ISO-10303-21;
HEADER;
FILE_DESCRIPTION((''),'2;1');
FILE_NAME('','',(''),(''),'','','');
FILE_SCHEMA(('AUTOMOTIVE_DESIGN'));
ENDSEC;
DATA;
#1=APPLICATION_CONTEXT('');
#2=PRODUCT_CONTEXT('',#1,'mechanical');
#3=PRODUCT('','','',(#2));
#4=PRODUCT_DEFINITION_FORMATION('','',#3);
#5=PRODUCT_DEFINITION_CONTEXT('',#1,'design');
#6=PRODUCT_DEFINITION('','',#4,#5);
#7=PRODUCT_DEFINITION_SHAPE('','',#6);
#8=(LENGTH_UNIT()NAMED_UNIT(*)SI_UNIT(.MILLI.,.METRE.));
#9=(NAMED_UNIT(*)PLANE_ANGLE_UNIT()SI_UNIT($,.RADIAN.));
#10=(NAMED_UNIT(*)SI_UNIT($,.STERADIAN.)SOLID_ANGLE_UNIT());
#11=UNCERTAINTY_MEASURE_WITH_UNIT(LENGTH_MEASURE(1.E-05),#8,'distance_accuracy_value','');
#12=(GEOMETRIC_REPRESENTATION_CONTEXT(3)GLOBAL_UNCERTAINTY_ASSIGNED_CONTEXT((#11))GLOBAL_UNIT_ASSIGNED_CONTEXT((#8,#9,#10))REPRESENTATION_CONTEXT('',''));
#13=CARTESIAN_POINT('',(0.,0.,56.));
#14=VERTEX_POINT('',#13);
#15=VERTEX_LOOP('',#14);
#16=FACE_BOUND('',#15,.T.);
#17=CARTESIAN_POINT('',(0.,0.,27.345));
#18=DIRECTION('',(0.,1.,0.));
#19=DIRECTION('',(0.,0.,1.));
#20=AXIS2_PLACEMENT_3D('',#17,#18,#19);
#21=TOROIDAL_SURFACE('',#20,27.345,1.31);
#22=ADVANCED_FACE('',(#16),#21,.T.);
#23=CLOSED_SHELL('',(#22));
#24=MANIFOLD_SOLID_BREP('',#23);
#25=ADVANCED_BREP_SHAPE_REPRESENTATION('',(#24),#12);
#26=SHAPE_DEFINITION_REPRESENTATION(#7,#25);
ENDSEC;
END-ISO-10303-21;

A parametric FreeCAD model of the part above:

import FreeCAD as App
import Part
import Sketcher
from FreeCAD import Vector
Q = App.Units.Quantity

doc = App.newDocument("Part")
body = doc.addObject("PartDesign::Body", "Body")

sketch1 = body.newObject("Sketcher::SketchObject", "Sketch")
sketch1.AttachmentSupport = (doc.getObject("YZ_Plane"), [""])
sketch1.MapMode = "FlatFace"
sketch1.addGeometry(Part.Circle(Vector(0, 0, 0), Vector(0, 0, 1), 1.3), False)
sketch1.addGeometry(Part.LineSegment(Vector(0, 27.3, 0), Vector(-10, 27.3, 0)), True)
sketch1.addConstraint([
    Sketcher.Constraint("Horizontal", 1),
    Sketcher.Constraint("Coincident", 0, 3, -1, 1),
    Sketcher.Constraint("PointOnObject", 1, 1, -2),
    Sketcher.Constraint("Diameter", 0, Q("2.62 mm")),
    Sketcher.Constraint("DistanceX", 1, 2, 1, 1, Q("10 mm")),
    Sketcher.Constraint("DistanceY", -1, 1, 1, 1, Q("27.345 mm")),
])
revolution = body.newObject("PartDesign::Revolution", "Revolution")
revolution.Profile = sketch1
revolution.ReferenceAxis = (sketch1, ["Axis0"])
revolution.Angle = 360

doc.recompute()
